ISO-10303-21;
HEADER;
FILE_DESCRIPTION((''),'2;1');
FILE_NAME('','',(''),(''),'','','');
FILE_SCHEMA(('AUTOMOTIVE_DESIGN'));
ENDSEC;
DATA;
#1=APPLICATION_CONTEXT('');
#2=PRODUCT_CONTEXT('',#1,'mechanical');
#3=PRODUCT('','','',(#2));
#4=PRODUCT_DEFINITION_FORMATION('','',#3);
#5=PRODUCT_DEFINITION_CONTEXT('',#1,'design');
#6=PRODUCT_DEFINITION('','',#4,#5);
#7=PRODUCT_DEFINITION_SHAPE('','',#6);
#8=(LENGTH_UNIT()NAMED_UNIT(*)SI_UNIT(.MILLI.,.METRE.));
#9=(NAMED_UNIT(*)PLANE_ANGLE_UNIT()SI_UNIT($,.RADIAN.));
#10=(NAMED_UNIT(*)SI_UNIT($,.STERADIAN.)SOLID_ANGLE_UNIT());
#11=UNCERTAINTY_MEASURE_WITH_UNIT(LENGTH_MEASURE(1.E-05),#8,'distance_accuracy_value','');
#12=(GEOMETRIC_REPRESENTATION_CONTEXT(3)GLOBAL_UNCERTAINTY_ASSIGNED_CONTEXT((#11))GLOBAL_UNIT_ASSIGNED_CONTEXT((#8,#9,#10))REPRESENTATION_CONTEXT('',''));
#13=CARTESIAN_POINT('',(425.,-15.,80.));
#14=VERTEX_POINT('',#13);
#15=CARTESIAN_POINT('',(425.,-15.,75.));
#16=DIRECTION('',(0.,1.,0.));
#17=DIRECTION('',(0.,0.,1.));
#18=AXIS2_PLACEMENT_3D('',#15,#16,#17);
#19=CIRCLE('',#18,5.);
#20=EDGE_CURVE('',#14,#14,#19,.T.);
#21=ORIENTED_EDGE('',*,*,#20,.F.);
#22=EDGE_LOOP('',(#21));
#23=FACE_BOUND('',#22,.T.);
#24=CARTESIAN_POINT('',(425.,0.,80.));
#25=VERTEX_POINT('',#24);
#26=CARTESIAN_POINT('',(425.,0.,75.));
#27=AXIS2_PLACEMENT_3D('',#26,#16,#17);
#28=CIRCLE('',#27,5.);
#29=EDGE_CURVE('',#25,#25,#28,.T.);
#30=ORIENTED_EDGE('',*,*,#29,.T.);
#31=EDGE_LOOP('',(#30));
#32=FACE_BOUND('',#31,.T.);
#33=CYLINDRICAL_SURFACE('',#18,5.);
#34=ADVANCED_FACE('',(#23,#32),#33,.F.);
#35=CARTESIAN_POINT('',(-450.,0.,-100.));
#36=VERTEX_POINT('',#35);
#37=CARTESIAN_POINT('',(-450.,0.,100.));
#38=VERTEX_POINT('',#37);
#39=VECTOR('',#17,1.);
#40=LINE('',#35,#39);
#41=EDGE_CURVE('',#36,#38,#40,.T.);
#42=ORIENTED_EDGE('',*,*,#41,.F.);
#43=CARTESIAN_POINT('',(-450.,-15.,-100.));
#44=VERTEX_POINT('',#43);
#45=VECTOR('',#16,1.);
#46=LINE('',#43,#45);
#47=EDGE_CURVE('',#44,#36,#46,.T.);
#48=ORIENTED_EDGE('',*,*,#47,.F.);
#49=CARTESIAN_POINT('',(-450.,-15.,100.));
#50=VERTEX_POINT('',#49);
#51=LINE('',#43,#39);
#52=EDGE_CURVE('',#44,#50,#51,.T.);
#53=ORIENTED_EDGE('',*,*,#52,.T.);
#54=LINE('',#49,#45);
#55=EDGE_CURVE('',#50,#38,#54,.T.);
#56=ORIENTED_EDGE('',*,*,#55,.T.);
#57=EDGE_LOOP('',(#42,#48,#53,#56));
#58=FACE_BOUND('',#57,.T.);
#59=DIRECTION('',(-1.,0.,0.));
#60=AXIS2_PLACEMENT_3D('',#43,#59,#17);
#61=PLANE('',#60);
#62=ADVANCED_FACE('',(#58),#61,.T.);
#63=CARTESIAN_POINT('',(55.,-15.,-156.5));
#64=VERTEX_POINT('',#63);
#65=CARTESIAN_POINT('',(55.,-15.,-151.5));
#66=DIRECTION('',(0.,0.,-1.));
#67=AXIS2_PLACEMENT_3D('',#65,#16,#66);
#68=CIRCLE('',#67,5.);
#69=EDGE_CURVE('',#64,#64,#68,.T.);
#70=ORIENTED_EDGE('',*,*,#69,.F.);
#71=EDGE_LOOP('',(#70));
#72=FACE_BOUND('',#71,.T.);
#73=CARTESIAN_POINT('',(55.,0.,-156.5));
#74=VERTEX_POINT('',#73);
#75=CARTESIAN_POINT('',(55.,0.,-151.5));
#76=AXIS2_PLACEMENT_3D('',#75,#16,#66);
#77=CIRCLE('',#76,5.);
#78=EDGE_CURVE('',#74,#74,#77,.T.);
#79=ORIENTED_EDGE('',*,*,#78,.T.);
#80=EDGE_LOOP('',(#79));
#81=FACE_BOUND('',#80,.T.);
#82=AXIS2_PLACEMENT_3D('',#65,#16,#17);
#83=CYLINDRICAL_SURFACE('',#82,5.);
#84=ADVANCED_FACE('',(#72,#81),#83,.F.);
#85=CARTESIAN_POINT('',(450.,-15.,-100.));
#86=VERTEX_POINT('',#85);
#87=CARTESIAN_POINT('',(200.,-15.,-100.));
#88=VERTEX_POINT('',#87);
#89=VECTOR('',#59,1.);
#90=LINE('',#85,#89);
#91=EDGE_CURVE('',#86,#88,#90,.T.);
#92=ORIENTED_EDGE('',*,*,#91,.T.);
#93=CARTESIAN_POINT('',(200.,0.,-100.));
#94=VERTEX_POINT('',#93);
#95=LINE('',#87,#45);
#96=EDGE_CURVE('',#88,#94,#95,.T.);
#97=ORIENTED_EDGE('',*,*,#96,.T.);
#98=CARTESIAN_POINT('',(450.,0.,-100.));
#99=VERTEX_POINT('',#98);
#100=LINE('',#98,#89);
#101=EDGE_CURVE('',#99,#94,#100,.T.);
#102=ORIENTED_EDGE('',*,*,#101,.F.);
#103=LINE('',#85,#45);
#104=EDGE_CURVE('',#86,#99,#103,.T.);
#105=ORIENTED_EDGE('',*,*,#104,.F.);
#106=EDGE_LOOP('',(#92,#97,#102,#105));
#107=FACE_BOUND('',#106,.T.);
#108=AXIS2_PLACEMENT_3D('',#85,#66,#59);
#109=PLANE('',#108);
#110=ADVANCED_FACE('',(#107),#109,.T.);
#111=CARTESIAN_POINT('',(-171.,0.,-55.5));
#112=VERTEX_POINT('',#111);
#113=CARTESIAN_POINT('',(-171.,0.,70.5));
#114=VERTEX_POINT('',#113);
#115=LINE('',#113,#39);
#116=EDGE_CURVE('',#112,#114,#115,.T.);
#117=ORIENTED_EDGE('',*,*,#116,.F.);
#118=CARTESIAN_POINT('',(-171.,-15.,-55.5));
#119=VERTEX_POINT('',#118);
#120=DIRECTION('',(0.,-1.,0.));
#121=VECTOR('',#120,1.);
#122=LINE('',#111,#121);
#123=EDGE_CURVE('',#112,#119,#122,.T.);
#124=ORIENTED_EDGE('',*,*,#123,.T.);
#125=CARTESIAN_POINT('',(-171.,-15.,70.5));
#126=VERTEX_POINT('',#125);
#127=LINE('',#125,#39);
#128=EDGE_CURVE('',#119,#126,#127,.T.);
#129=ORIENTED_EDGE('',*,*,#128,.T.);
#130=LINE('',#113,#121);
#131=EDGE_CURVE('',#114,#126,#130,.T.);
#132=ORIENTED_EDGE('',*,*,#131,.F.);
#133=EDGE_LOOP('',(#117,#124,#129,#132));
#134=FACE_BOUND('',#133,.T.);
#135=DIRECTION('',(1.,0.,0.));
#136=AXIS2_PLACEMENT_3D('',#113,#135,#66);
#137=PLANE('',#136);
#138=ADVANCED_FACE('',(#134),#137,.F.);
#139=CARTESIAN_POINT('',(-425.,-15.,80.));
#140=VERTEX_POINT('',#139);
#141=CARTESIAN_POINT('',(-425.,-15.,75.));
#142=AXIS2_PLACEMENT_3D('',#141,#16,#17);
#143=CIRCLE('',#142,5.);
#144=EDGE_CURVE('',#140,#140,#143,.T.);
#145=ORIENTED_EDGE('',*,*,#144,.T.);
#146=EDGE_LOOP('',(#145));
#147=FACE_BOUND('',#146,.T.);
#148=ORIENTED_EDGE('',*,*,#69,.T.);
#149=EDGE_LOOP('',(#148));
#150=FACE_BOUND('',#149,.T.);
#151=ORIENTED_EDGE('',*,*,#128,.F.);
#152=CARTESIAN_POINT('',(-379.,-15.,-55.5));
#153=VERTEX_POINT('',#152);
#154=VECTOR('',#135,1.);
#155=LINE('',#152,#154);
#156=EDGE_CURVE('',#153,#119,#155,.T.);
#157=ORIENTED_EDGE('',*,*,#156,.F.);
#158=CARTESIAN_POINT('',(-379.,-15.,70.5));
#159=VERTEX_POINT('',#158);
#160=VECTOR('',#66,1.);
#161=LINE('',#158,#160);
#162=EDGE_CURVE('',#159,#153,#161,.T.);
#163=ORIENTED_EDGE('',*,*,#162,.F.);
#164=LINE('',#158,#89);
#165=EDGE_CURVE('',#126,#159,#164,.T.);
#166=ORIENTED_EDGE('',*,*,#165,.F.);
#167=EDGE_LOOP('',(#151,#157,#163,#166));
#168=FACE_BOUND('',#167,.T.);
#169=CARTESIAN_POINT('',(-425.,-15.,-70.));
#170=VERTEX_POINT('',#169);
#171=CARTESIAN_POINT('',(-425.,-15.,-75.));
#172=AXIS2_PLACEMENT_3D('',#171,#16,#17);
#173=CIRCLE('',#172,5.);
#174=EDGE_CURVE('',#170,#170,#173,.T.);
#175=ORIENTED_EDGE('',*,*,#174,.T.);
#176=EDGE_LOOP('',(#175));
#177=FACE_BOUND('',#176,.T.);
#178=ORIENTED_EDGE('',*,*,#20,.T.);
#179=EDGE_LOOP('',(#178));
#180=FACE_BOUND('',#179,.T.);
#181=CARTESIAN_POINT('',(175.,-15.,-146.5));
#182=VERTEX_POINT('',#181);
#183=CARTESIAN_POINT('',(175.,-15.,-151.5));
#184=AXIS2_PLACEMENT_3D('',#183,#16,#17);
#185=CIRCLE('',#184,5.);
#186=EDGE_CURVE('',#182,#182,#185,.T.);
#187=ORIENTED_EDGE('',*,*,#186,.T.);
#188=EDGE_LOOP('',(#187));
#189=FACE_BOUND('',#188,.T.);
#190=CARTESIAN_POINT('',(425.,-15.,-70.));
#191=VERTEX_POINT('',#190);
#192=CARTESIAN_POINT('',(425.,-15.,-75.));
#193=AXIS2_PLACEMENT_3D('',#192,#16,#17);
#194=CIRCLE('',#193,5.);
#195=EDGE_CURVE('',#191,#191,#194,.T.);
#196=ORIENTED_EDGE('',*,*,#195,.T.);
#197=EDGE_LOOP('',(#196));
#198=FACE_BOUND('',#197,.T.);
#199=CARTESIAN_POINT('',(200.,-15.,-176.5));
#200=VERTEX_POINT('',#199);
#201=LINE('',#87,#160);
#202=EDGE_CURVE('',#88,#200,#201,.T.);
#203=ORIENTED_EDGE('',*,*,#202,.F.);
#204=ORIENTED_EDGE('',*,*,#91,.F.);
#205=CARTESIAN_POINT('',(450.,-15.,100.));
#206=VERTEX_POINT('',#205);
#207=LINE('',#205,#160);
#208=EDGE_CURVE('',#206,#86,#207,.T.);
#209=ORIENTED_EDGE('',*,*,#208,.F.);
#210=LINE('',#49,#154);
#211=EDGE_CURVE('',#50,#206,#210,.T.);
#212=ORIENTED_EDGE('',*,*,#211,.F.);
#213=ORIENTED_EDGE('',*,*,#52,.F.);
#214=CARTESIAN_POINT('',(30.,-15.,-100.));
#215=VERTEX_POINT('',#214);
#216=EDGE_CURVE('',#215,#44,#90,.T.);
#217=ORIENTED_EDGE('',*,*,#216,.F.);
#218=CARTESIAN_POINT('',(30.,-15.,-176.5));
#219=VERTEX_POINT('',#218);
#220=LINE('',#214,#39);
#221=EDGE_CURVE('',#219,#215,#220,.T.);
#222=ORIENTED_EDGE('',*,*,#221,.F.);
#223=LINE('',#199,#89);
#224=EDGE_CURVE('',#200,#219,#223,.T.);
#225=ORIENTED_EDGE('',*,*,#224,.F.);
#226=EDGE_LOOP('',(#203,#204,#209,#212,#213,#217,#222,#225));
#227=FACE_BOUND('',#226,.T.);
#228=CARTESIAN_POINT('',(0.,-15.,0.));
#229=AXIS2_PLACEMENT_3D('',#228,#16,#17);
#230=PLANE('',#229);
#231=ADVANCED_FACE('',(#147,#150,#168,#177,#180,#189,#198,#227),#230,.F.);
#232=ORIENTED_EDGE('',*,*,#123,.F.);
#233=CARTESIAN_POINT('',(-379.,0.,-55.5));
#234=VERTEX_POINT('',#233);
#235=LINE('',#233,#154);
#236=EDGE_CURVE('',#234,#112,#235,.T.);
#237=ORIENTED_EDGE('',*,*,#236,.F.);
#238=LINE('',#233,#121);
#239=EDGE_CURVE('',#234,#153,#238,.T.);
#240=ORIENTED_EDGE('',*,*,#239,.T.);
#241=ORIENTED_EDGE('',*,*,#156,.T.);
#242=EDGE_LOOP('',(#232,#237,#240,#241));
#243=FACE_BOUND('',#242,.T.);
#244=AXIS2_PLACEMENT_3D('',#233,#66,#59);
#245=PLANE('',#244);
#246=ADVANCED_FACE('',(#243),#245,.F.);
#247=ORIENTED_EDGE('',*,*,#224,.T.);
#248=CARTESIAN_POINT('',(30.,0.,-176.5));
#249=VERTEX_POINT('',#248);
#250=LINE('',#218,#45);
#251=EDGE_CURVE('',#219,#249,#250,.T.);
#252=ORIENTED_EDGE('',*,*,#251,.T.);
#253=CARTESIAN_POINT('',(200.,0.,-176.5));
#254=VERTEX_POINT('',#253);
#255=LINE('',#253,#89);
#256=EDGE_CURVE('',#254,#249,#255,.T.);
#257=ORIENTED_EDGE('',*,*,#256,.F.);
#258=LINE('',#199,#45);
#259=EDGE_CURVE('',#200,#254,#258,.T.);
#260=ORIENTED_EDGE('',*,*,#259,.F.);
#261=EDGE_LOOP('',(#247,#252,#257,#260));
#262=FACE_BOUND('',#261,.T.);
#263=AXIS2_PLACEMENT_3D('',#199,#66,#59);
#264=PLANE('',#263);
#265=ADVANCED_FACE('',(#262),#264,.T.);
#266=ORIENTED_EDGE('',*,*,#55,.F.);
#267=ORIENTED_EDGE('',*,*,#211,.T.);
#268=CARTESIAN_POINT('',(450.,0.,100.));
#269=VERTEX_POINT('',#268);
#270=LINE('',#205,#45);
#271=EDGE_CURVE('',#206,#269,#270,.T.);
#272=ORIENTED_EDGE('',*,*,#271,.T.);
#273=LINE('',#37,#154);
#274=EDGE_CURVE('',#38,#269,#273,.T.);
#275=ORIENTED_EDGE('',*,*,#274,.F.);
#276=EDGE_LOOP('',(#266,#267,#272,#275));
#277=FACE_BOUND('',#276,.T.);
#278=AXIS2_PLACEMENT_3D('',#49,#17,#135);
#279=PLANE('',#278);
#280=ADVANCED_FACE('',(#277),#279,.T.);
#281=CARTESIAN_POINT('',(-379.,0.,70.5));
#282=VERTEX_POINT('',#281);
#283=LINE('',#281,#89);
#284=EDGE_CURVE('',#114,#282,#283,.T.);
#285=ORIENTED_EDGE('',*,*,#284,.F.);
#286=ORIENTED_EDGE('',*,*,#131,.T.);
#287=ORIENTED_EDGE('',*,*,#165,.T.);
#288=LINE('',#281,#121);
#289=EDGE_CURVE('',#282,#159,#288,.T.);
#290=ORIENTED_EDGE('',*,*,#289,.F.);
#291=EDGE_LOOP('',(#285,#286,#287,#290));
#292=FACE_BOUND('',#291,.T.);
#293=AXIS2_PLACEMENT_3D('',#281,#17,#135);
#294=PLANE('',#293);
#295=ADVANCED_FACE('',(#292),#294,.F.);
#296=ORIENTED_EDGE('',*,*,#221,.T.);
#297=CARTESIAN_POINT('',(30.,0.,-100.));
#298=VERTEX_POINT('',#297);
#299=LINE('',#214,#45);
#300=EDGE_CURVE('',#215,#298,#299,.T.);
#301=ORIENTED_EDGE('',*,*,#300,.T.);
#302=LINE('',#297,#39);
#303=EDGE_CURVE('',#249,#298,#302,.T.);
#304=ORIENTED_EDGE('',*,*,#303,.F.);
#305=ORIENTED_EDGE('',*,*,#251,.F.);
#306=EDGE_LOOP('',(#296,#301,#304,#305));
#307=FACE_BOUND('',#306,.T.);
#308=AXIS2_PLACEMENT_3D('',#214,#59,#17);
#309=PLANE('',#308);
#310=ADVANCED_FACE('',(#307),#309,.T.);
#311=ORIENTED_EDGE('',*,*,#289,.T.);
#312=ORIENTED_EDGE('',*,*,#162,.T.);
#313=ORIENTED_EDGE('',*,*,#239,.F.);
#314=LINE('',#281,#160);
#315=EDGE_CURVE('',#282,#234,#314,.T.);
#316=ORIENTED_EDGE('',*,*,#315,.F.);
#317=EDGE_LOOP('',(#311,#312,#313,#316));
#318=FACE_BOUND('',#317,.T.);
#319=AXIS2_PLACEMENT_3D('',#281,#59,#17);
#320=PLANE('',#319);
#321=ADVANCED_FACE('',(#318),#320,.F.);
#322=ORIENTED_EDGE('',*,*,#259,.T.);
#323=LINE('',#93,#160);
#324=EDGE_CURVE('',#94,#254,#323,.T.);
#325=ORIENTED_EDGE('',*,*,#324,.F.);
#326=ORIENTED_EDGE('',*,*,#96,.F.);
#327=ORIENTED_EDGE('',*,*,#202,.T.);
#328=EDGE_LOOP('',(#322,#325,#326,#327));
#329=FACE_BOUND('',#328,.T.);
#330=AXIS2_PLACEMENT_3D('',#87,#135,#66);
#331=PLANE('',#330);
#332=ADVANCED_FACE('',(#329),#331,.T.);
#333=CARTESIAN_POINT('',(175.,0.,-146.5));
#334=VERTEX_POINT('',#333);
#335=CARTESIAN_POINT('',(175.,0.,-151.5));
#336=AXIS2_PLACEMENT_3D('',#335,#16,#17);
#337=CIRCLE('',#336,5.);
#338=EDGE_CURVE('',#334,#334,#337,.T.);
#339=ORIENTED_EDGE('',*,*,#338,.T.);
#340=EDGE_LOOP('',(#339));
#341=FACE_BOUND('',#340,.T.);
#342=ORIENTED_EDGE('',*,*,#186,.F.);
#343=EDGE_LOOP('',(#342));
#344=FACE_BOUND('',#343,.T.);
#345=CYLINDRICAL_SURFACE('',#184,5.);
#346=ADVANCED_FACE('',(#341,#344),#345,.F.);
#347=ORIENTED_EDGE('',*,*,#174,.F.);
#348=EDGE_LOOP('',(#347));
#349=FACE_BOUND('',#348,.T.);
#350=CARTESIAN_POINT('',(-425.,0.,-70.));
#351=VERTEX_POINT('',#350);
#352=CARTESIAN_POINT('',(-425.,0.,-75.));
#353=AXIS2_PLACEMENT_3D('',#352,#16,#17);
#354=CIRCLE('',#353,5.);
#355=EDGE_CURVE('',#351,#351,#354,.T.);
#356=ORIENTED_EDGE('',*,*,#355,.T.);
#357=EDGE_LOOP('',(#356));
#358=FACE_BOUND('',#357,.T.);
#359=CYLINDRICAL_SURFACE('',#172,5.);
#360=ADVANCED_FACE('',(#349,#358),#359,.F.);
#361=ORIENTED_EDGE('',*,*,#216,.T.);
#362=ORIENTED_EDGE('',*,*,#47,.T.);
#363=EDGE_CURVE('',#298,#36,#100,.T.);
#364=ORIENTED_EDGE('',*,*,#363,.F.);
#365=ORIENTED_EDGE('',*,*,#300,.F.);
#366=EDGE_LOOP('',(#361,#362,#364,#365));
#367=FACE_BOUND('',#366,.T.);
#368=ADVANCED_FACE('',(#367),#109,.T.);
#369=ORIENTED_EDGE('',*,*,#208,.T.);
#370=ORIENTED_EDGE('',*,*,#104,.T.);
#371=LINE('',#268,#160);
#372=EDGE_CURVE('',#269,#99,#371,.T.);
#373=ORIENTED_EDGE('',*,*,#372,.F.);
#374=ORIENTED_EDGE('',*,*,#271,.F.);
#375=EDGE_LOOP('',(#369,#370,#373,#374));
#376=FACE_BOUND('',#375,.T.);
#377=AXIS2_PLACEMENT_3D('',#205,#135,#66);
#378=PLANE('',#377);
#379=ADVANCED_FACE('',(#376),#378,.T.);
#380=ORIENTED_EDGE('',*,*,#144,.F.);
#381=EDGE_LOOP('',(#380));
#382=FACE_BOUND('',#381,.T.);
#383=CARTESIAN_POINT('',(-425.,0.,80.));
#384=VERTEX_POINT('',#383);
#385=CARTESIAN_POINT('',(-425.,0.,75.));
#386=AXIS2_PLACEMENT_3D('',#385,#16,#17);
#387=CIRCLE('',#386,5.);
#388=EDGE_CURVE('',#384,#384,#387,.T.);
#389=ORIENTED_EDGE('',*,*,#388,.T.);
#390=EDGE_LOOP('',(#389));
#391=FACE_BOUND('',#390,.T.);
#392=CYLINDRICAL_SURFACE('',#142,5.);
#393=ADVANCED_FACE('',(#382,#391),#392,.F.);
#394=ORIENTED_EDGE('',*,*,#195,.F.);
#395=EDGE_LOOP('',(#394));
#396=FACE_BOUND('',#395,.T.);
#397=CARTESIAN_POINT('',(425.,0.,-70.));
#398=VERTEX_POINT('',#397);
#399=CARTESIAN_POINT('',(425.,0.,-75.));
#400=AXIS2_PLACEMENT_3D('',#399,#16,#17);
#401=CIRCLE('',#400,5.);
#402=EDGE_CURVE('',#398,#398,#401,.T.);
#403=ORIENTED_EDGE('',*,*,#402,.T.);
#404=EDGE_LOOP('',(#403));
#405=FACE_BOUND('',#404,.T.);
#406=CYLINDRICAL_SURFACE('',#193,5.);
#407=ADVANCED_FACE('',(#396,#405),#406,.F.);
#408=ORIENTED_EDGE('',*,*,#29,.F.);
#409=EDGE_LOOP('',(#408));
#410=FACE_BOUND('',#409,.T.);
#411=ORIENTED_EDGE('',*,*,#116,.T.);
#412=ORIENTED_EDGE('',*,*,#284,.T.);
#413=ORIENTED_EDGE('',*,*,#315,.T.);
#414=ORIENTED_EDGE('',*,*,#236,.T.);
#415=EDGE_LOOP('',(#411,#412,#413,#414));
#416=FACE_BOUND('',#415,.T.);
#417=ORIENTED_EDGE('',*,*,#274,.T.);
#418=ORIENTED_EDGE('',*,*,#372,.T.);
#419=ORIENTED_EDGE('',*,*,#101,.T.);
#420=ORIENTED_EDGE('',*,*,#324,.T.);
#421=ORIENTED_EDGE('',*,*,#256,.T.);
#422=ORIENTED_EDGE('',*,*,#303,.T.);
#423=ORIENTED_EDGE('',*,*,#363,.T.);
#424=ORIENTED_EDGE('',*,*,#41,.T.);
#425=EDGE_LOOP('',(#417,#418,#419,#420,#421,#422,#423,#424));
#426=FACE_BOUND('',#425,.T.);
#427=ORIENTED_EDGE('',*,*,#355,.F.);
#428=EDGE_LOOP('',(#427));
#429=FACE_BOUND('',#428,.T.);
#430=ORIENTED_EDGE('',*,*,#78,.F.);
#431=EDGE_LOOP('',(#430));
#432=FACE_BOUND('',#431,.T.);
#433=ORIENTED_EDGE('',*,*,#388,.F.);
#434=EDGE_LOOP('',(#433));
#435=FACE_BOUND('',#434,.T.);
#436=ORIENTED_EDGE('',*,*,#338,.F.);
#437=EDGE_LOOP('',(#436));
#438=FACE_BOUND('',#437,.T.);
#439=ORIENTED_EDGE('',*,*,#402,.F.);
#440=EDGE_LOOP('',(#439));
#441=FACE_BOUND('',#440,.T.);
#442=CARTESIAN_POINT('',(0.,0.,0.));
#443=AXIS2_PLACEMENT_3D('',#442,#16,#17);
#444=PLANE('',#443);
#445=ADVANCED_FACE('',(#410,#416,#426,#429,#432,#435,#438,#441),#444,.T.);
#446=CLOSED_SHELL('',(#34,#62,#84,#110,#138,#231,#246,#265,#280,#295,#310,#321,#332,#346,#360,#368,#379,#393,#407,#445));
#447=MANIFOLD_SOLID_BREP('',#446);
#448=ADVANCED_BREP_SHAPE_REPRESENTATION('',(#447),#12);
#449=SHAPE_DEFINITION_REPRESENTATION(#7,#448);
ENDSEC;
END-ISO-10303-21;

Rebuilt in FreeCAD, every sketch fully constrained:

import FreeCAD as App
import Part
import Sketcher
Q = App.Units.Quantity


def add_polygon(sketch, points):
    """Adds a closed chain of lines whose ends are joined by coincident constraints."""
    first, n = sketch.GeometryCount, len(points)
    for a, b in zip(points, points[1:] + points[:1]):
        sketch.addGeometry(Part.LineSegment(App.Vector(*a, 0), App.Vector(*b, 0)), False)
    for i in range(n):
        sketch.addConstraint(Sketcher.Constraint("Coincident", first + i, 2, first + (i + 1) % n, 1))

doc = App.newDocument("Part")
body = doc.addObject("PartDesign::Body", "Body")

sketch1 = doc.addObject("Sketcher::SketchObject", "Sketch")
body.addObject(sketch1)
sketch1.AttachmentSupport = (doc.XZ_Plane, [""])
sketch1.MapMode = "FlatFace"
add_polygon(sketch1, [(-450, -100), (-450, 100), (450, 100), (450, -100)])
sketch1.addGeometry(Part.Circle(App.Vector(-425, 75, 0), App.Vector(0, 0, 1), 5), False)
sketch1.addGeometry(Part.Circle(App.Vector(425, 75, 0), App.Vector(0, 0, 1), 5), False)
sketch1.addGeometry(Part.Circle(App.Vector(-425, -75, 0), App.Vector(0, 0, 1), 5), False)
sketch1.addGeometry(Part.Circle(App.Vector(425, -75, 0), App.Vector(0, 0, 1), 5), False)
sketch1.addConstraint([
    Sketcher.Constraint("Vertical", 0),
    Sketcher.Constraint("Horizontal", 1),
    Sketcher.Constraint("Vertical", 2),
    Sketcher.Constraint("Horizontal", 3),
    Sketcher.Constraint("Equal", 4, 5),
    Sketcher.Constraint("Equal", 5, 6),
    Sketcher.Constraint("Equal", 6, 7),
    Sketcher.Constraint("Symmetric", 5, 3, 6, 3, -1, 1),
    Sketcher.Constraint("Symmetric", 4, 3, 7, 3, -1, 1),
    Sketcher.Constraint("Symmetric", 0, 2, 2, 2, -1, 1),
    Sketcher.Constraint("Symmetric", 4, 3, 5, 3, -2),
    Sketcher.Constraint("Diameter", 4, Q("10 mm")),
    Sketcher.Constraint("DistanceX", 1, 1, 1, 2, Q("900 mm")),
    Sketcher.Constraint("DistanceY", 0, 1, 0, 2, Q("200 mm")),
    Sketcher.Constraint("DistanceX", 4, 3, -1, 1, Q("425 mm")),
    Sketcher.Constraint("DistanceY", -1, 1, 4, 3, Q("75 mm")),
])
pad1 = doc.addObject("PartDesign::Pad", "Pad")
body.addObject(pad1)
pad1.Profile = sketch1
pad1.Length = 15

sketch2 = doc.addObject("Sketcher::SketchObject", "Sketch001")
body.addObject(sketch2)
sketch2.AttachmentSupport = (doc.XZ_Plane, [""])
sketch2.MapMode = "FlatFace"
sketch2.AttachmentOffset = App.Placement(App.Vector(0, 0, 15), App.Rotation())
add_polygon(sketch2, [(-379, 70), (-379, -56), (-171, -56), (-171, 70)])
sketch2.addConstraint([
    Sketcher.Constraint("Vertical", 0),
    Sketcher.Constraint("Horizontal", 1),
    Sketcher.Constraint("Vertical", 2),
    Sketcher.Constraint("Horizontal", 3),
    Sketcher.Constraint("DistanceX", 1, 1, 1, 2, Q("208 mm")),
    Sketcher.Constraint("DistanceY", 0, 2, 0, 1, Q("126 mm")),
    Sketcher.Constraint("DistanceX", 0, 2, -1, 1, Q("379 mm")),
    Sketcher.Constraint("DistanceY", 0, 2, -1, 1, Q("55.5 mm")),
])
pocket1 = doc.addObject("PartDesign::Pocket", "Pocket")
body.addObject(pocket1)
pocket1.Profile = sketch2
pocket1.Type = "ThroughAll"

sketch3 = doc.addObject("Sketcher::SketchObject", "Sketch002")
body.addObject(sketch3)
sketch3.AttachmentSupport = (doc.XZ_Plane, [""])
sketch3.MapMode = "FlatFace"
add_polygon(sketch3, [(30, -176), (30, -100), (200, -100), (200, -176)])
sketch3.addGeometry(Part.Circle(App.Vector(55, -152, 0), App.Vector(0, 0, 1), 5), False)
sketch3.addGeometry(Part.Circle(App.Vector(175, -152, 0), App.Vector(0, 0, 1), 5), False)
sketch3.addConstraint([
    Sketcher.Constraint("Vertical", 0),
    Sketcher.Constraint("Horizontal", 1),
    Sketcher.Constraint("Vertical", 2),
    Sketcher.Constraint("Horizontal", 3),
    Sketcher.Constraint("Equal", 4, 5),
    Sketcher.Constraint("Horizontal", 4, 3, 5, 3),
    Sketcher.Constraint("Diameter", 4, Q("10 mm")),
    Sketcher.Constraint("DistanceX", 1, 1, 1, 2, Q("170 mm")),
    Sketcher.Constraint("DistanceY", 0, 1, 0, 2, Q("76.5 mm")),
    Sketcher.Constraint("DistanceX", -1, 1, 4, 3, Q("55 mm")),
    Sketcher.Constraint("DistanceX", -1, 1, 5, 3, Q("175 mm")),
    Sketcher.Constraint("DistanceX", -1, 1, 0, 2, Q("30 mm")),
    Sketcher.Constraint("DistanceY", 0, 2, -1, 1, Q("100 mm")),
    Sketcher.Constraint("DistanceY", 2, 2, 5, 3, Q("25 mm")),
])
pad2 = doc.addObject("PartDesign::Pad", "Pad001")
body.addObject(pad2)
pad2.Profile = sketch3
pad2.Length = 15

doc.recompute()
